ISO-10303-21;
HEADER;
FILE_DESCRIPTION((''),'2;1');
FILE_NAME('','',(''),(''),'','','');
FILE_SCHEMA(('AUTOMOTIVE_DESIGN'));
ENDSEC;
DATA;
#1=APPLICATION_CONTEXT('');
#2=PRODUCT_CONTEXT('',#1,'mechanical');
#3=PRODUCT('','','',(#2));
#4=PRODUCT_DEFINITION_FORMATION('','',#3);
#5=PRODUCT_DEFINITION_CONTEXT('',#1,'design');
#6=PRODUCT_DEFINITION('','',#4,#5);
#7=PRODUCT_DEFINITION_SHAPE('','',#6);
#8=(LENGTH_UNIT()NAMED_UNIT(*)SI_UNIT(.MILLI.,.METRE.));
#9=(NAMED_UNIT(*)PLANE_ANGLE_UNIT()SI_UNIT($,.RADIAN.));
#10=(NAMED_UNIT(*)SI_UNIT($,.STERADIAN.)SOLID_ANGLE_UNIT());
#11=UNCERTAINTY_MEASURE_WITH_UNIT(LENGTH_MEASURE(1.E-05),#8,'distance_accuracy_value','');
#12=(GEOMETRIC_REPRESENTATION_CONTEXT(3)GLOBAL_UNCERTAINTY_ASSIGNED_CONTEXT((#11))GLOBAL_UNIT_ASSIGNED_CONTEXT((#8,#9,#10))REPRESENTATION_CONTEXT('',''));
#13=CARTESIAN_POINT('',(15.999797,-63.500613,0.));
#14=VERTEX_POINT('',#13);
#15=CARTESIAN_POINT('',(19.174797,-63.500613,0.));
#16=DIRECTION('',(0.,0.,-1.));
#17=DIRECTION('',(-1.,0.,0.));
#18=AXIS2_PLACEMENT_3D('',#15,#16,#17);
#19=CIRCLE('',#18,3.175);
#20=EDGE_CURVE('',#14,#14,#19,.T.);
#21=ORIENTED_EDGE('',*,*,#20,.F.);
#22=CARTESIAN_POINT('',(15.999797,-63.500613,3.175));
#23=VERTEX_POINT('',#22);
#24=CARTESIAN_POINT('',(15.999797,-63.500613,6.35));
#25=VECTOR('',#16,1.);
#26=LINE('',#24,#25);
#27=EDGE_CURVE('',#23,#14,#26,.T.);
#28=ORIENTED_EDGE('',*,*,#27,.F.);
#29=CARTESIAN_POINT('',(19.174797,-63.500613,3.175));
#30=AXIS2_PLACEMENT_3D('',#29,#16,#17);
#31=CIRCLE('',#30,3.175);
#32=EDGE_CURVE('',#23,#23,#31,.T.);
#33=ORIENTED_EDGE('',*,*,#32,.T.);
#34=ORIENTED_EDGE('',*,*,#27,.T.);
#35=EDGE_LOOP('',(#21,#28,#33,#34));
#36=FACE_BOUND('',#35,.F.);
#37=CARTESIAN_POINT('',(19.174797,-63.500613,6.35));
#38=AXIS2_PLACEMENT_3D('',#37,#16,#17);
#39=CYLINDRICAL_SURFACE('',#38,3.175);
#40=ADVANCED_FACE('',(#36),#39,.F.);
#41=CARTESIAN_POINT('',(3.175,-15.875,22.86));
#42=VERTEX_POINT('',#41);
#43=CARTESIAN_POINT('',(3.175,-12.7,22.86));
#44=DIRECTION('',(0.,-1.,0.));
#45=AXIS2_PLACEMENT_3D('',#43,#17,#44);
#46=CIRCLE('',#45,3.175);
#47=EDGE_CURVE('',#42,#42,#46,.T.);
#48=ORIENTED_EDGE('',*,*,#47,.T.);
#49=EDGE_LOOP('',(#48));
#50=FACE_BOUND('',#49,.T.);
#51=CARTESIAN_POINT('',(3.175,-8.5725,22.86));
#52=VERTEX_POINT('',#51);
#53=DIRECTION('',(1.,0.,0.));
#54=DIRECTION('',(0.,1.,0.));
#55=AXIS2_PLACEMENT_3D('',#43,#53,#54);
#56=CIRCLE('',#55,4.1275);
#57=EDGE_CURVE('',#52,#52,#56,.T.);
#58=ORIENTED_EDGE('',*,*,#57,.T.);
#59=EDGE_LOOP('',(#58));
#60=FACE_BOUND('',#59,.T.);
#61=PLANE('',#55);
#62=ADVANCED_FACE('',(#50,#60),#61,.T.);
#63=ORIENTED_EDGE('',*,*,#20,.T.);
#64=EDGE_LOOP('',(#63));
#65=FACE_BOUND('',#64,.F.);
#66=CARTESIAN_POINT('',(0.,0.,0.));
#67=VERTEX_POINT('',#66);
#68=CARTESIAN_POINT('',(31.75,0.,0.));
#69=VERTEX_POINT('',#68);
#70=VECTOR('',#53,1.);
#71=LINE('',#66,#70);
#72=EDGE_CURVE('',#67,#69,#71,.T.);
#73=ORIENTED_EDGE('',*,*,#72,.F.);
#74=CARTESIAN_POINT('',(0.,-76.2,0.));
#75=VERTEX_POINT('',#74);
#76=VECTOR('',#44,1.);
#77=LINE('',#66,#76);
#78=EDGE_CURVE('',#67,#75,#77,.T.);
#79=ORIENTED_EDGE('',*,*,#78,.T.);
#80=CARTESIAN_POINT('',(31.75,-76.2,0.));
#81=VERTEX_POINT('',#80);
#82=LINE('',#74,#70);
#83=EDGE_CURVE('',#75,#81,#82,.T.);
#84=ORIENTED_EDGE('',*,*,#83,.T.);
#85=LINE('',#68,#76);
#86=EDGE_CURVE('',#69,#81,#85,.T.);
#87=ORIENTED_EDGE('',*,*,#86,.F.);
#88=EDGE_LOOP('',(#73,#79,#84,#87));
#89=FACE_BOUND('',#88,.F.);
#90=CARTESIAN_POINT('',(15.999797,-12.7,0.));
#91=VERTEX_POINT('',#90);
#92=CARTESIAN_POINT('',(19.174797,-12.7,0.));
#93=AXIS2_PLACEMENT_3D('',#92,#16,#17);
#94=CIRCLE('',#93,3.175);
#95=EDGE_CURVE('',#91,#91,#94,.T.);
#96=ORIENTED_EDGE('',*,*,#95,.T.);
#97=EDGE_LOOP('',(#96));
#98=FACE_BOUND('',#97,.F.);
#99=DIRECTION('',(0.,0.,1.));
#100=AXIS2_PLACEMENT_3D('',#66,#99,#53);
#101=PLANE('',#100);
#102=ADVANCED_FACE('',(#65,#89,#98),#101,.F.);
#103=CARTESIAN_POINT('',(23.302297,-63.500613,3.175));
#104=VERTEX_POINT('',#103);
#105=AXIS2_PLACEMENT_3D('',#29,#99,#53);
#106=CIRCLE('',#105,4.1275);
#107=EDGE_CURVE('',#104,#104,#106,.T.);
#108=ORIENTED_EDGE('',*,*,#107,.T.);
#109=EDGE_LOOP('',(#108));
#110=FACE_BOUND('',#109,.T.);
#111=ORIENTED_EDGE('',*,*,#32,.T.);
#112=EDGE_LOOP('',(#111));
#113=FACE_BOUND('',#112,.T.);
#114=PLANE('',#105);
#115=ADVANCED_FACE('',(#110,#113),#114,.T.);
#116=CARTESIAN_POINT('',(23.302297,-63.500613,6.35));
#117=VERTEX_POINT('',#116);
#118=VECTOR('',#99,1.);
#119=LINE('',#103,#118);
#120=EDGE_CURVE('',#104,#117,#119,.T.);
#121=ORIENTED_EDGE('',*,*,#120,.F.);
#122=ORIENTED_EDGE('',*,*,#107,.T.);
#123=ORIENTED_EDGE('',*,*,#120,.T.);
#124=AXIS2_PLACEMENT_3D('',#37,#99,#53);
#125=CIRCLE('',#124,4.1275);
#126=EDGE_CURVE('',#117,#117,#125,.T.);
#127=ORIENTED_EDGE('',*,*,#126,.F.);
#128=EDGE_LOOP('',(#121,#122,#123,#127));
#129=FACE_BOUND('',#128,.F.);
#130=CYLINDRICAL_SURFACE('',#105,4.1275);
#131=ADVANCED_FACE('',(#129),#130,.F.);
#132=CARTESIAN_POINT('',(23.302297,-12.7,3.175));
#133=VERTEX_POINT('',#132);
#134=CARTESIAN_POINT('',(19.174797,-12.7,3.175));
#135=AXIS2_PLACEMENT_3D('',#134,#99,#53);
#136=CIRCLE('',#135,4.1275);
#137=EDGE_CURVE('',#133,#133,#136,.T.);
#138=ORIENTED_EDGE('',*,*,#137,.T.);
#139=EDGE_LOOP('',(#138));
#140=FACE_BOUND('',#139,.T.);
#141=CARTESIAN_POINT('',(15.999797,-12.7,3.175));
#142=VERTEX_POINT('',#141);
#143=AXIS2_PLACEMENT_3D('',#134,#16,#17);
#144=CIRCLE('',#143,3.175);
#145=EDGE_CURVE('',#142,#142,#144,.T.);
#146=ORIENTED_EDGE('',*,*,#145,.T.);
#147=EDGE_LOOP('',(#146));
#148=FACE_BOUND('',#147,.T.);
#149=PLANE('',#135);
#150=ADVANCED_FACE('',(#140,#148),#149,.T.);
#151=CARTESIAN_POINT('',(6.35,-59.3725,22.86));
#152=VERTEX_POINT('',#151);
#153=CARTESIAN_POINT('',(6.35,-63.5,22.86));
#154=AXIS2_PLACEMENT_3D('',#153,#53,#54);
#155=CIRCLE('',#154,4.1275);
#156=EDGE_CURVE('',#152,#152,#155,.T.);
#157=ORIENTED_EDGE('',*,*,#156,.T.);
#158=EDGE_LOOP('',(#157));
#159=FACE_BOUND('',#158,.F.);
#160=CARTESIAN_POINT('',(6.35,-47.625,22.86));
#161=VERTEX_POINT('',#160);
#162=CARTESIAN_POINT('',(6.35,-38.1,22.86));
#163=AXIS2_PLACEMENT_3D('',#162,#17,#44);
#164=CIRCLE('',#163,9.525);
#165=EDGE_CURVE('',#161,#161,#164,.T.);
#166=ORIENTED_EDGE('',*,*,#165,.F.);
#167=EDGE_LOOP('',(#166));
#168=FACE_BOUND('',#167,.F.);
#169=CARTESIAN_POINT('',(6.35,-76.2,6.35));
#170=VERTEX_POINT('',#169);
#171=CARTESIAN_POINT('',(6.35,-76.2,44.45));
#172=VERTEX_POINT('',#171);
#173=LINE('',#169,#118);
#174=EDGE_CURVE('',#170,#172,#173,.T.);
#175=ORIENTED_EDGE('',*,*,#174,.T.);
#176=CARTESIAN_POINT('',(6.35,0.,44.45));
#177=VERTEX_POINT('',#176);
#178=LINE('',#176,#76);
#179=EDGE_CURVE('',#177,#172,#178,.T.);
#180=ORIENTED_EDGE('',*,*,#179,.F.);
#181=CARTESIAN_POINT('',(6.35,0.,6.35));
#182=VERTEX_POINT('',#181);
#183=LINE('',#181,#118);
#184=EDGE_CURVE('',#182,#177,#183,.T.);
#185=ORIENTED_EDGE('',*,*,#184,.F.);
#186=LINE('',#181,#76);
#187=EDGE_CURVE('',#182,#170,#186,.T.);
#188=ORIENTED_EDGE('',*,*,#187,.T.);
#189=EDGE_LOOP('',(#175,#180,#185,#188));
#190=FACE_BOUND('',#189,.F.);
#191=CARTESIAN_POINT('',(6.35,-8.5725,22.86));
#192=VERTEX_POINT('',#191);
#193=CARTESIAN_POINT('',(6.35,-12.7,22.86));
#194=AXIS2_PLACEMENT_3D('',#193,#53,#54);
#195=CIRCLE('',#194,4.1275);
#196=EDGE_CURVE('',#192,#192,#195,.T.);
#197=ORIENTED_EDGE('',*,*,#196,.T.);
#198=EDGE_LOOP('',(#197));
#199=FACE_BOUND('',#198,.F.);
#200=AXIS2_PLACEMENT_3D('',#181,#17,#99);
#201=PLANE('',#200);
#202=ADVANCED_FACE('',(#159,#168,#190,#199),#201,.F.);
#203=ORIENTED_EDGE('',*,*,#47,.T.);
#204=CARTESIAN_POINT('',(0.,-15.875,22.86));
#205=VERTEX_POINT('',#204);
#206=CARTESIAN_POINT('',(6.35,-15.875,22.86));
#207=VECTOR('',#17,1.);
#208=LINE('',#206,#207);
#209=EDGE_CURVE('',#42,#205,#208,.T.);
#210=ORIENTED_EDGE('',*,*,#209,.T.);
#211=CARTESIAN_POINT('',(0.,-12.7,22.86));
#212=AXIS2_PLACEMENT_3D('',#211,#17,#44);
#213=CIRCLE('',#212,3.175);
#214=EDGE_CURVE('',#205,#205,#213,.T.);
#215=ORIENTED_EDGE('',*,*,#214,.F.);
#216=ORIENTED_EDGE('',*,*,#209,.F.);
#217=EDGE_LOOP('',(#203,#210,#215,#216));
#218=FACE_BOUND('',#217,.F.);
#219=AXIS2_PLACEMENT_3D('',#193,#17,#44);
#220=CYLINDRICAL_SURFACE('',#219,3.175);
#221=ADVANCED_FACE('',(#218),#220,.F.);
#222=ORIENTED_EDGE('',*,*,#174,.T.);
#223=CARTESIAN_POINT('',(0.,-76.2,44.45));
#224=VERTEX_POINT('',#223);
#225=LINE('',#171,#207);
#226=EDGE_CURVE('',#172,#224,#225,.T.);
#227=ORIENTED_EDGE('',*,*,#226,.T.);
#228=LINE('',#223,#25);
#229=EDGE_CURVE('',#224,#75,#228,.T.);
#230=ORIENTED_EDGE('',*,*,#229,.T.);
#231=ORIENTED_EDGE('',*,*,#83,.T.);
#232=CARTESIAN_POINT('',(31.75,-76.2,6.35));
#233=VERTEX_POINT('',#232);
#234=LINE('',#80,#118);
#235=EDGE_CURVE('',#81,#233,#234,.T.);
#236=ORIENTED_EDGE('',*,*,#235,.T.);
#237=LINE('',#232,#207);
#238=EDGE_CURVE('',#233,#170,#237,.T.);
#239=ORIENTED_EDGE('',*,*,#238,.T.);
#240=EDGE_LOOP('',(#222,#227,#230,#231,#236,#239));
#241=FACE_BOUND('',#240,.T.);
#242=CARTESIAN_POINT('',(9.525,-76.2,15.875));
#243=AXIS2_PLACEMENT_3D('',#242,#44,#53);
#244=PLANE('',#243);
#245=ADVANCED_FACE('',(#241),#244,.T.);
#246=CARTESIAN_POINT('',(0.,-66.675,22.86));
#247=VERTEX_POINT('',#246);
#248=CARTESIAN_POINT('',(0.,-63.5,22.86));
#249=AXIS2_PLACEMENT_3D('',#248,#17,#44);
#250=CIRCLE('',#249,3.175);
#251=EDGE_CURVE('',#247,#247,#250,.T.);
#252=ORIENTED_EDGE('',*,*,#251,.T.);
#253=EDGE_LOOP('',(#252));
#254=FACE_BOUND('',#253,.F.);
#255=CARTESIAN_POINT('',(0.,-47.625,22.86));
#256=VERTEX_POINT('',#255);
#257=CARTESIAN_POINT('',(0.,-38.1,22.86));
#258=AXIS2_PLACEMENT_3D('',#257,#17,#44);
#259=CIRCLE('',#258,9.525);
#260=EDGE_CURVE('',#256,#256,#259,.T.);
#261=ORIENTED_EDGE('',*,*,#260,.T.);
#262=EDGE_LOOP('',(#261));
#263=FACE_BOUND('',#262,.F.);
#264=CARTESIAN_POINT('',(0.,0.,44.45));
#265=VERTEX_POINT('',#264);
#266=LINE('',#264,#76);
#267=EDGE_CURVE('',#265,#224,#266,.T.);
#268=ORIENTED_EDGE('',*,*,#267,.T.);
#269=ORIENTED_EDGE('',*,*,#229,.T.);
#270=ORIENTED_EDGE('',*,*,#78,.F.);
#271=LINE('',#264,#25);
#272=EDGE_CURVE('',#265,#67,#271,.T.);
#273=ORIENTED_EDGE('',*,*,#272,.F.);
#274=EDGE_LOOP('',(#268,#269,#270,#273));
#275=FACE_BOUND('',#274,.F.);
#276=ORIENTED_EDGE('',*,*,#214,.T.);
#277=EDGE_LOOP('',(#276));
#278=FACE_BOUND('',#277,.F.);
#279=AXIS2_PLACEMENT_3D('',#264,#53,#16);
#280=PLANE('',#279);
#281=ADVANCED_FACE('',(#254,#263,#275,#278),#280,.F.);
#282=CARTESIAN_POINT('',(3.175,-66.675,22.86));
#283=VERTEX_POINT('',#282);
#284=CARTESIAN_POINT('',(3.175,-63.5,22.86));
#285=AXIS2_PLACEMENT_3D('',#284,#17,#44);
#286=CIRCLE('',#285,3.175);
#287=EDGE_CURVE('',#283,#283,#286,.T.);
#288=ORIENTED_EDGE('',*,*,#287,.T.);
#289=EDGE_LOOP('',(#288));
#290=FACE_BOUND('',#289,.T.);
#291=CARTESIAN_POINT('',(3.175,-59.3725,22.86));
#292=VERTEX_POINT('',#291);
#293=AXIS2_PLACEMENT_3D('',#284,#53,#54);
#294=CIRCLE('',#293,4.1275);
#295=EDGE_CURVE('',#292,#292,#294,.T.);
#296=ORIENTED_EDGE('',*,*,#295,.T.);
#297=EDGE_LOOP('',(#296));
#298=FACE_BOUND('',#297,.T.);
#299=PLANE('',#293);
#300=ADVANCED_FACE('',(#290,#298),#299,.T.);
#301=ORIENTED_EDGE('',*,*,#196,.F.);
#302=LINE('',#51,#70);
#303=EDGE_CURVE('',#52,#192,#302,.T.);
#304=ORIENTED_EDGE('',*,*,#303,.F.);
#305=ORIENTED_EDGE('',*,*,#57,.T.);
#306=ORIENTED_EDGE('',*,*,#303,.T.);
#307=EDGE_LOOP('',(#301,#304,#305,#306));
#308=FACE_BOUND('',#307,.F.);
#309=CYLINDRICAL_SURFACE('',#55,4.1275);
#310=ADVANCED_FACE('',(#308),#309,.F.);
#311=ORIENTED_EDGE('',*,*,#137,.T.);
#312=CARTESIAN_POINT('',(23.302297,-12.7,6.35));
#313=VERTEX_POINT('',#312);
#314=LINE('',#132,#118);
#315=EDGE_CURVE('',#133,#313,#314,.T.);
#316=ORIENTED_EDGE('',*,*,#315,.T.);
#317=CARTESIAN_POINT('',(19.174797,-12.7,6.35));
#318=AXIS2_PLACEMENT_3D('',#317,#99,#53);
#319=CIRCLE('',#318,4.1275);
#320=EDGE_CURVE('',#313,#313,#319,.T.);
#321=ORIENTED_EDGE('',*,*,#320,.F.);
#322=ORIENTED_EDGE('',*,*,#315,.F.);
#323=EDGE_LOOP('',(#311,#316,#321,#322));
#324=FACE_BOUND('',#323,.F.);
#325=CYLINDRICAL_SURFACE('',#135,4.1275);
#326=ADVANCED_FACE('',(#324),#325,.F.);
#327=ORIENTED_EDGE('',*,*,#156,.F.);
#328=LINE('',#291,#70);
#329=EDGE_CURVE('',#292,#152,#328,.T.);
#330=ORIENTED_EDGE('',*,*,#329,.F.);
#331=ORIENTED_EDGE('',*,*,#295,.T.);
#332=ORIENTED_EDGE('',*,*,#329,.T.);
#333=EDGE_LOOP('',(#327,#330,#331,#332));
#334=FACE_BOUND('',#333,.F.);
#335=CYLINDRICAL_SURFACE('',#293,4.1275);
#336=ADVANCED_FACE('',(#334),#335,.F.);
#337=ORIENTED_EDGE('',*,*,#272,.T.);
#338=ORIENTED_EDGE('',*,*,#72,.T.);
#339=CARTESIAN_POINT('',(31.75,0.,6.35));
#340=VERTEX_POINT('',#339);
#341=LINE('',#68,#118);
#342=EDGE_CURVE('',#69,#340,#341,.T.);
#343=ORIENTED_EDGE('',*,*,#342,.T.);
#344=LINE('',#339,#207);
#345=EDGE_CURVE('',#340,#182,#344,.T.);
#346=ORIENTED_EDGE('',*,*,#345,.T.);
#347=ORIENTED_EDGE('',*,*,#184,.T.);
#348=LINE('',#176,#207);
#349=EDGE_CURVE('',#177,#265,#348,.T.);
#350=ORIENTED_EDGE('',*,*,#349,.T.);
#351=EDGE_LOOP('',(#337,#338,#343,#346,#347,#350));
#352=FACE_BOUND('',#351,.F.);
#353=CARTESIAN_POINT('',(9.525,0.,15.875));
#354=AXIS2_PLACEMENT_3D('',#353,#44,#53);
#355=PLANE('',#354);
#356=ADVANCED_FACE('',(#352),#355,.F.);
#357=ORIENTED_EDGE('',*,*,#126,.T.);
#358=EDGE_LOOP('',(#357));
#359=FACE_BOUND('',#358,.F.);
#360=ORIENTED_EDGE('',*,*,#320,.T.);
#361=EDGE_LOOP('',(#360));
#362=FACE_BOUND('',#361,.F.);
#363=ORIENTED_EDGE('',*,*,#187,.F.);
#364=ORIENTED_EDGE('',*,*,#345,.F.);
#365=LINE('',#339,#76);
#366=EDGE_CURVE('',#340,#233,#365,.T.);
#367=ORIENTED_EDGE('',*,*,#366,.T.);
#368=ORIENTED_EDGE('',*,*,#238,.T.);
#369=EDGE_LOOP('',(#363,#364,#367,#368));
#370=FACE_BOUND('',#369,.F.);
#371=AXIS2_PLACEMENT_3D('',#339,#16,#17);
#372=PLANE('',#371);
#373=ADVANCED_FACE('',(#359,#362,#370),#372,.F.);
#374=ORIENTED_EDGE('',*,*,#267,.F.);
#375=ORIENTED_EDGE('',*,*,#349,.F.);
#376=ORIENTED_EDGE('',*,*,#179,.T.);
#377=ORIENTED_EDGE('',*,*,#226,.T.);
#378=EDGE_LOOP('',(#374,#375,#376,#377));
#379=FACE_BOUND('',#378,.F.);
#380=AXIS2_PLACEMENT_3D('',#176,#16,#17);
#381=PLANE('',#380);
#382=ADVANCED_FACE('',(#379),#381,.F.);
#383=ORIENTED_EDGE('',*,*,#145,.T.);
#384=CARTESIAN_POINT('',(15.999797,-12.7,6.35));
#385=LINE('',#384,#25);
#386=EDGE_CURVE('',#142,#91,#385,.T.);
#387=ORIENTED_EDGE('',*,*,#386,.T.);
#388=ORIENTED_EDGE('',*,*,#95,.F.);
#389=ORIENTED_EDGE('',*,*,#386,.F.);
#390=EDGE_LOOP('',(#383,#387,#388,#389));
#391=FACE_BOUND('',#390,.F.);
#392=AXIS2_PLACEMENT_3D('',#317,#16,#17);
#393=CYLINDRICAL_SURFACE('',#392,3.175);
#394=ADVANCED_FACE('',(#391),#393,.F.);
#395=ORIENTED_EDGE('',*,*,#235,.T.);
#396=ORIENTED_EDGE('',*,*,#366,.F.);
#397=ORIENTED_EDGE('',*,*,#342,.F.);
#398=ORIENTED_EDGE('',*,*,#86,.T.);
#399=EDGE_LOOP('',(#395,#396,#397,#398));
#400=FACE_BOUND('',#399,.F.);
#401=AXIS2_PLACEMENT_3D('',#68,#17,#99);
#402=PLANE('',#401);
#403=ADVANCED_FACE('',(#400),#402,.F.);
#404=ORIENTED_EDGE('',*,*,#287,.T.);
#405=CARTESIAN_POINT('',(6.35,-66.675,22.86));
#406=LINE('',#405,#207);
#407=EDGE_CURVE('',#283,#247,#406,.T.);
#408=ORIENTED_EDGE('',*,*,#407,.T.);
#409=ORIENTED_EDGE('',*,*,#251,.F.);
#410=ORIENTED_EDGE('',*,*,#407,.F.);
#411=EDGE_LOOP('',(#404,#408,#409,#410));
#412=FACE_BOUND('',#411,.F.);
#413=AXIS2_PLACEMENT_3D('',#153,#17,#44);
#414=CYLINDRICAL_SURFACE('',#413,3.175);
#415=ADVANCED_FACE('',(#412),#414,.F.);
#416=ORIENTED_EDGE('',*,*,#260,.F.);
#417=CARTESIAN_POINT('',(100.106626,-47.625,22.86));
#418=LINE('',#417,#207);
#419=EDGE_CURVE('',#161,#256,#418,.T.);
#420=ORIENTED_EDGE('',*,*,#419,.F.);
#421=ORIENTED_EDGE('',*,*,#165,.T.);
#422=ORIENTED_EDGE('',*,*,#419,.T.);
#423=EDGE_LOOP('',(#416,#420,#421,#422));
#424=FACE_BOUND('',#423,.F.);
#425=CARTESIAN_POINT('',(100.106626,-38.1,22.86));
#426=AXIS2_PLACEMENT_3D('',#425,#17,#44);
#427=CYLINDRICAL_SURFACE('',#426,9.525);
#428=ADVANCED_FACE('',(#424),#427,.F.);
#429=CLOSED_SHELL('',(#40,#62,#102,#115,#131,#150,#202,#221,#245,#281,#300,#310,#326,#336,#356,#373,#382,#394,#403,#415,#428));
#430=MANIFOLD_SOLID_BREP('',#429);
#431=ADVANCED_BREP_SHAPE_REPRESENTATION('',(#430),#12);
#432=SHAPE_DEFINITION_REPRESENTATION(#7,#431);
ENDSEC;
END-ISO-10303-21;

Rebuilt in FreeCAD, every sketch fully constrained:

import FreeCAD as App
import Part
import Sketcher
Q = App.Units.Quantity


def add_polygon(sketch, points):
    """Adds a closed chain of lines whose ends are joined by coincident constraints."""
    first, n = sketch.GeometryCount, len(points)
    for a, b in zip(points, points[1:] + points[:1]):
        sketch.addGeometry(Part.LineSegment(App.Vector(*a, 0), App.Vector(*b, 0)), False)
    for i in range(n):
        sketch.addConstraint(Sketcher.Constraint("Coincident", first + i, 2, first + (i + 1) % n, 1))

doc = App.newDocument("Part")
body = doc.addObject("PartDesign::Body", "Body")

# Sketch on XZ plane
sketch1 = body.newObject("Sketcher::SketchObject", "Sketch")
sketch1.AttachmentSupport = (doc.getObject("XZ_Plane"), [""])
sketch1.MapMode = "FlatFace"
add_polygon(sketch1, [(0, 44), (0, 0), (32, 0), (32, 6), (6, 6), (6, 44)])  # lines 0-5
sketch1.addConstraint(Sketcher.Constraint("Vertical", 0))
sketch1.addConstraint(Sketcher.Constraint("Horizontal", 1))
sketch1.addConstraint(Sketcher.Constraint("Vertical", 2))
sketch1.addConstraint(Sketcher.Constraint("Horizontal", 3))
sketch1.addConstraint(Sketcher.Constraint("Vertical", 4))
sketch1.addConstraint(Sketcher.Constraint("Horizontal", 5))
sketch1.addConstraint(Sketcher.Constraint("Coincident", 0, 2, -1, 1))
sketch1.addConstraint(Sketcher.Constraint("Equal", 5, 2))
sketch1.addConstraint(Sketcher.Constraint("DistanceX", 3, 2, 3, 1, Q("1 in")))
sketch1.addConstraint(Sketcher.Constraint("DistanceY", 4, 1, 4, 2, Q("1.5 in")))
sketch1.addConstraint(Sketcher.Constraint("DistanceX", 1, 1, 1, 2, Q("1.25 in")))
pad1 = body.newObject("PartDesign::Pad", "Pad")
pad1.Profile = sketch1
pad1.Length = Q("3 in")

# Sketch on YZ plane
sketch2 = body.newObject("Sketcher::SketchObject", "Sketch001")
sketch2.AttachmentSupport = (doc.getObject("YZ_Plane"), [""])
sketch2.MapMode = "FlatFace"
sketch2.AttachmentOffset = App.Placement(App.Vector(0, 0, 0.25 * 25.4), App.Rotation())
sketch2.addGeometry(Part.Circle(App.Vector(-63.5, 22.9, 0), App.Vector(0, 0, 1), 3.2), False)
sketch2.addGeometry(Part.Circle(App.Vector(-12.7, 22.9, 0), App.Vector(0, 0, 1), 3.2), False)
sketch2.addConstraint(Sketcher.Constraint("Equal", 0, 1))
sketch2.addConstraint(Sketcher.Constraint("Horizontal", 0, 3, 1, 3))
sketch2.addConstraint(Sketcher.Constraint("Diameter", 0, Q("0.25 in")))
sketch2.addConstraint(Sketcher.Constraint("DistanceX", 0, 3, 1, 3, Q("2 in")))
sketch2.addConstraint(Sketcher.Constraint("DistanceX", 0, 3, -1, 1, Q("2.5 in")))
sketch2.addConstraint(Sketcher.Constraint("DistanceY", -1, 1, 0, 3, Q("0.9 in")))
doc.recompute()
hole = body.newObject("PartDesign::Hole", "Hole")
hole.Profile = sketch2
hole.ThreadType = "None"
hole.Diameter = Q("0.25 in")
hole.DepthType = "ThroughAll"
hole.HoleCutType = "Counterbore"
hole.HoleCutDiameter = Q("0.325 in")
hole.HoleCutDepth = Q("0.125 in")

# Sketch on XY plane
sketch3 = body.newObject("Sketcher::SketchObject", "Sketch002")
sketch3.AttachmentSupport = (doc.getObject("XY_Plane"), [""])
sketch3.MapMode = "FlatFace"
sketch3.AttachmentOffset = App.Placement(App.Vector(0, 0, 0.25 * 25.4), App.Rotation())
sketch3.addGeometry(Part.Circle(App.Vector(19.2, -12.7, 0), App.Vector(0, 0, 1), 3.2), False)
sketch3.addGeometry(Part.Circle(App.Vector(19.2, -63.5, 0), App.Vector(0, 0, 1), 3.2), False)
sketch3.addConstraint(Sketcher.Constraint("Equal", 0, 1))
sketch3.addConstraint(Sketcher.Constraint("Vertical", 0, 3, 1, 3))
sketch3.addConstraint(Sketcher.Constraint("Diameter", 0, Q("0.25 in")))
sketch3.addConstraint(Sketcher.Constraint("DistanceY", 0, 3, -1, 1, Q("0.5 in")))
sketch3.addConstraint(Sketcher.Constraint("DistanceX", -1, 1, 0, 3, Q("19.174797 mm")))
sketch3.addConstraint(Sketcher.Constraint("DistanceY", 1, 3, -1, 1, Q("63.500613 mm")))
doc.recompute()
hole2 = body.newObject("PartDesign::Hole", "Hole001")
hole2.Profile = sketch3
hole2.ThreadType = "None"
hole2.Diameter = Q("0.25 in")
hole2.DepthType = "ThroughAll"
hole2.HoleCutType = "Counterbore"
hole2.HoleCutDiameter = Q("0.325 in")
hole2.HoleCutDepth = Q("0.125 in")

# Sketch on YZ plane
sketch4 = body.newObject("Sketcher::SketchObject", "Sketch003")
sketch4.AttachmentSupport = (doc.getObject("YZ_Plane"), [""])
sketch4.MapMode = "FlatFace"
sketch4.AttachmentOffset = App.Placement(App.Vector(0, 0, 0.25 * 25.4), App.Rotation())
sketch4.addGeometry(Part.Circle(App.Vector(-38, 23, 0), App.Vector(0, 0, 1), 10), False)
sketch4.addConstraint(Sketcher.Constraint("Diameter", 0, Q("0.75 in")))
sketch4.addConstraint(Sketcher.Constraint("DistanceX", 0, 3, -1, 1, Q("1.5 in")))
sketch4.addConstraint(Sketcher.Constraint("DistanceY", -1, 1, 0, 3, Q("0.9 in")))
doc.recompute()
hole3 = body.newObject("PartDesign::Hole", "Hole002")
hole3.Profile = sketch4
hole3.ThreadType = "None"
hole3.Diameter = Q("0.75 in")
hole3.DepthType = "ThroughAll"

doc.recompute()
